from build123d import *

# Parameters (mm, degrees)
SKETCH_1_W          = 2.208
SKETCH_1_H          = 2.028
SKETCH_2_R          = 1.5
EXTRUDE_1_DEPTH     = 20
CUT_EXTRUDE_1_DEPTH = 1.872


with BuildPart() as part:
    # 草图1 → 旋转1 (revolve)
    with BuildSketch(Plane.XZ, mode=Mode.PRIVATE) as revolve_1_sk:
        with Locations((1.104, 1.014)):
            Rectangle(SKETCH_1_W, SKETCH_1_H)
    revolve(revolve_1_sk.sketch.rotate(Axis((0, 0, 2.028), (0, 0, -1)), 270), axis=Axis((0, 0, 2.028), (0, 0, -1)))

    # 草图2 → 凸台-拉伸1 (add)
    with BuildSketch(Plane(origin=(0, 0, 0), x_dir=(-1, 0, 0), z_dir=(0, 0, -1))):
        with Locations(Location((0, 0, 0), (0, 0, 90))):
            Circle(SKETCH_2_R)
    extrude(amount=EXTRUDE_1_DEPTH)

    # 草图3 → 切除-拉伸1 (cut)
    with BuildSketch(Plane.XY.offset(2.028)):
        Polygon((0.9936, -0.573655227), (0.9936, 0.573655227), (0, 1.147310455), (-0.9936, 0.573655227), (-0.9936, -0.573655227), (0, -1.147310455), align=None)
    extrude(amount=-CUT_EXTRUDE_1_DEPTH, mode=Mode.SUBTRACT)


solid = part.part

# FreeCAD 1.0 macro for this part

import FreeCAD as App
import Part
import Sketcher
Q = App.Units.Quantity

doc = App.newDocument("Part")
body = doc.addObject("PartDesign::Body", "Body")

# Sketch on XZ plane
sketch1 = body.newObject("Sketcher::SketchObject", "Sketch")
sketch1.AttachmentSupport = (doc.getObject("XZ_Plane"), [""])
sketch1.MapMode = "FlatFace"
sketch1.addGeometry([
    Part.LineSegment(App.Vector(0, 2, 0), App.Vector(0, 0, 0)),
    Part.LineSegment(App.Vector(0, 0, 0), App.Vector(2.2, 0, 0)),
    Part.LineSegment(App.Vector(2.2, 0, 0), App.Vector(2.2, 2, 0)),
    Part.LineSegment(App.Vector(2.2, 2, 0), App.Vector(0, 2, 0)),
], False)
sketch1.addConstraint([
    Sketcher.Constraint("Coincident", 0, 2, 1, 1),
    Sketcher.Constraint("Coincident", 1, 2, 2, 1),
    Sketcher.Constraint("Coincident", 2, 2, 3, 1),
    Sketcher.Constraint("Coincident", 3, 2, 0, 1),
    Sketcher.Constraint("Vertical", 0),
    Sketcher.Constraint("Horizontal", 1),
    Sketcher.Constraint("Vertical", 2),
    Sketcher.Constraint("Horizontal", 3),
    Sketcher.Constraint("Coincident", 0, 2, -1, 1),
    Sketcher.Constraint("DistanceX", 1, 1, 1, 2, Q("2.208 mm")),
    Sketcher.Constraint("DistanceY", 0, 2, 0, 1, Q("2.028 mm")),
])
revolution = body.newObject("PartDesign::Revolution", "Revolution")
revolution.Profile = sketch1
revolution.ReferenceAxis = (sketch1, ["V_Axis"])
revolution.Angle = 360

# Sketch on XY plane
sketch2 = body.newObject("Sketcher::SketchObject", "Sketch001")
sketch2.AttachmentSupport = (doc.getObject("XY_Plane"), [""])
sketch2.MapMode = "FlatFace"
sketch2.addGeometry(Part.Circle(App.Vector(0, 0, 0), App.Vector(0, 0, 1), 1.5), False)
sketch2.addConstraint([
    Sketcher.Constraint("Coincident", 0, 3, -1, 1),
    Sketcher.Constraint("Diameter", 0, Q("3 mm")),
])
pad1 = body.newObject("PartDesign::Pad", "Pad")
pad1.Profile = sketch2
pad1.Length = 20
pad1.Reversed = True

# Sketch on XY plane
sketch3 = body.newObject("Sketcher::SketchObject", "Sketch002")
sketch3.AttachmentSupport = (doc.getObject("XY_Plane"), [""])
sketch3.MapMode = "FlatFace"
sketch3.AttachmentOffset = App.Placement(App.Vector(0, 0, 2.028), App.Rotation())
sketch3.addGeometry([
    Part.LineSegment(App.Vector(1, -0.6, 0), App.Vector(1, 0.6, 0)),  # 0
    Part.LineSegment(App.Vector(1, 0.6, 0), App.Vector(0, 1.1, 0)),  # 1
    Part.LineSegment(App.Vector(0, 1.1, 0), App.Vector(-1, 0.6, 0)),  # 2
    Part.LineSegment(App.Vector(-1, 0.6, 0), App.Vector(-1, -0.6, 0)),  # 3
    Part.LineSegment(App.Vector(-1, -0.6, 0), App.Vector(0, -1.1, 0)),  # 4
    Part.LineSegment(App.Vector(0, -1.1, 0), App.Vector(1, -0.6, 0)),  # 5
], False)
sketch3.addConstraint([
    Sketcher.Constraint("Coincident", 0, 2, 1, 1),
    Sketcher.Constraint("Coincident", 1, 2, 2, 1),
    Sketcher.Constraint("Coincident", 2, 2, 3, 1),
    Sketcher.Constraint("Coincident", 3, 2, 4, 1),
    Sketcher.Constraint("Coincident", 4, 2, 5, 1),
    Sketcher.Constraint("Coincident", 5, 2, 0, 1),
    Sketcher.Constraint("Vertical", 0),
    Sketcher.Constraint("Vertical", 3),
    Sketcher.Constraint("Symmetric", 0, 2, 3, 2, -1, 1),
    Sketcher.Constraint("Symmetric", 1, 2, 4, 2, -1, 1),
    Sketcher.Constraint("PointOnObject", 1, 2, -2),
    Sketcher.Constraint("Parallel", 2, 5),
    Sketcher.Constraint("Horizontal", 0, 2, 2, 2),
    Sketcher.Constraint("Angle", 1, Q("150 deg")),
    Sketcher.Constraint("DistanceY", 0, 1, 0, 2, Q("1.14731 mm")),
    Sketcher.Constraint("DistanceX", -1, 1, 0, 2, Q("0.9936 mm")),
])
pocket1 = body.newObject("PartDesign::Pocket", "Pocket")
pocket1.Profile = sketch3
pocket1.Length = 1.872

doc.recompute()
